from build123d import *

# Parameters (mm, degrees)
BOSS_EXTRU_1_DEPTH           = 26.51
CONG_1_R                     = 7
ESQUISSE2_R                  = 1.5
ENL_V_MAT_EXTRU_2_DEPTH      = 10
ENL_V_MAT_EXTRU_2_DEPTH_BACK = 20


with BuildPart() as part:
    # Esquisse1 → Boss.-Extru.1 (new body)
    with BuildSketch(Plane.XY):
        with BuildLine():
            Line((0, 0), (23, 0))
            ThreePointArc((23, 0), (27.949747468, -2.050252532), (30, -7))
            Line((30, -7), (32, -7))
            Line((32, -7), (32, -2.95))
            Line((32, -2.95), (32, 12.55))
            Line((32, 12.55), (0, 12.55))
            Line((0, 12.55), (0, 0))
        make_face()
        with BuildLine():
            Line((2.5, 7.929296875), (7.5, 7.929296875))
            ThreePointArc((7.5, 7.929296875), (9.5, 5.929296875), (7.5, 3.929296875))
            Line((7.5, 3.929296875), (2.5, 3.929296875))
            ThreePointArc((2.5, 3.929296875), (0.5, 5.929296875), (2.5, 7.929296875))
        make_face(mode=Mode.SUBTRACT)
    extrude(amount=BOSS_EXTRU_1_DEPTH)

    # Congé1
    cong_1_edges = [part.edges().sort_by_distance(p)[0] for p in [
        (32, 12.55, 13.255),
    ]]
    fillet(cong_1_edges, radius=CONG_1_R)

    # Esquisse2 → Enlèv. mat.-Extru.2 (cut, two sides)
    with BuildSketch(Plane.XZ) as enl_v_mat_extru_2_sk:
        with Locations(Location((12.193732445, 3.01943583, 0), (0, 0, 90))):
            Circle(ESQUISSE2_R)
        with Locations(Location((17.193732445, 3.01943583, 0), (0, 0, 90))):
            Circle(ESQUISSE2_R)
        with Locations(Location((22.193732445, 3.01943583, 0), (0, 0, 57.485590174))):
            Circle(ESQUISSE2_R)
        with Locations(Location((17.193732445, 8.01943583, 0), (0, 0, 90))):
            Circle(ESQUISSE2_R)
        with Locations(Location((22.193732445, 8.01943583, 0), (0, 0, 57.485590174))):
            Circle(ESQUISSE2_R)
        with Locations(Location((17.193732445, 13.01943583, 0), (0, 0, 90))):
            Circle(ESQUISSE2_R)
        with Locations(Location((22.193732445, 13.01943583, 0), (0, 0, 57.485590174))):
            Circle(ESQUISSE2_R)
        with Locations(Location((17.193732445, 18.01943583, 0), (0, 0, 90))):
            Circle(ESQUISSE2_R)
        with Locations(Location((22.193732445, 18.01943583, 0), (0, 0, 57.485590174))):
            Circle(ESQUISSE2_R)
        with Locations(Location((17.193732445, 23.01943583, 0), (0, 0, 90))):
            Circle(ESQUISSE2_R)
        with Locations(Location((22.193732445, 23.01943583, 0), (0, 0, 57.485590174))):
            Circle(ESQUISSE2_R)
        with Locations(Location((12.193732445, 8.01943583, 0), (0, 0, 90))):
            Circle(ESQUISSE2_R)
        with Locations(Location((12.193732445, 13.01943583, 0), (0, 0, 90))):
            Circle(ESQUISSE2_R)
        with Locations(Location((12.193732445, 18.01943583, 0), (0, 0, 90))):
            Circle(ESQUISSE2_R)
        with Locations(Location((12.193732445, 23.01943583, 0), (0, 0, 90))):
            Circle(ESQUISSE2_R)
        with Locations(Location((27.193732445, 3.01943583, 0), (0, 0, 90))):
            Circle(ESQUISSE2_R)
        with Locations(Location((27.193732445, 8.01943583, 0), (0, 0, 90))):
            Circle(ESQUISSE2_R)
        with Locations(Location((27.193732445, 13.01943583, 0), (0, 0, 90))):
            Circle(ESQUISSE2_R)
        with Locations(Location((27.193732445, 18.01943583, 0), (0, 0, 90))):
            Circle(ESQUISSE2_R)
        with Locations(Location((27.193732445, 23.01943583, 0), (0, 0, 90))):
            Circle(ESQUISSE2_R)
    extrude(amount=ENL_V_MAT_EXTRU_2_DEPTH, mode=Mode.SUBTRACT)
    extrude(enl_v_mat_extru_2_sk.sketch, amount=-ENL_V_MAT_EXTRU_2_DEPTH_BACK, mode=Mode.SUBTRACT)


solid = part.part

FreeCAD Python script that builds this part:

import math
import FreeCAD as App
import Part
import Sketcher
from FreeCAD import Vector
Q = App.Units.Quantity


def edges_at(feature, points):
    """Names of the edges that pass closest to the given points."""
    edges = feature.Shape.Edges
    near = lambda p: min(range(len(edges)), key=lambda i: edges[i].distToShape(Part.Vertex(*p))[0])
    return sorted({f"Edge{near(p) + 1}" for p in points})

doc = App.newDocument("Part")
params = doc.addObject("Spreadsheet::Sheet", "Params")
for row, (alias, value) in enumerate([
    ("sketch1_radius", "7 mm"),
    ("sketch1_radius2", "2 mm"),
    ("sketch1_width", "23 mm"),
    ("sketch1_width2", "2 mm"),
    ("sketch1_width3", "5 mm"),
    ("pad1_length", "26.51 mm"),
    ("fillet_radius", "7 mm"),
    ("sketch2_diameter", "3 mm"),
], start=1):
    params.set(f"A{row}", alias)
    params.set(f"B{row}", "=" + value)
    params.setAlias(f"B{row}", alias)

body = doc.addObject("PartDesign::Body", "Body")

sketch1 = body.newObject("Sketcher::SketchObject", "Sketch")
sketch1.AttachmentSupport = (doc.getObject("XY_Plane"), [""])
sketch1.MapMode = "FlatFace"
sketch1.addGeometry(Part.LineSegment(Vector(0, 0, 0), Vector(23, 0, 0)), False)
sketch1.addGeometry(Part.ArcOfCircle(Part.Circle(Vector(23, -7, 0), Vector(0, 0, 1), 7), math.radians(0), math.radians(90)), False)
sketch1.addGeometry(Part.LineSegment(Vector(30, -7, 0), Vector(32, -7, 0)), False)
sketch1.addGeometry(Part.LineSegment(Vector(32, -7, 0), Vector(32, 12.55, 0)), False)
sketch1.addGeometry(Part.LineSegment(Vector(32, 12.55, 0), Vector(0, 12.55, 0)), False)
sketch1.addGeometry(Part.LineSegment(Vector(0, 12.55, 0), Vector(0, 0, 0)), False)
sketch1.addGeometry(Part.ArcOfCircle(Part.Circle(Vector(2.5, 5.929297, 0), Vector(0, 0, 1), 2), math.radians(90), math.radians(270)), False)
sketch1.addGeometry(Part.LineSegment(Vector(2.5, 7.929297, 0), Vector(7.5, 7.929297, 0)), False)
sketch1.addGeometry(Part.ArcOfCircle(Part.Circle(Vector(7.5, 5.929297, 0), Vector(0, 0, 1), 2), math.radians(-90), math.radians(90)), False)
sketch1.addGeometry(Part.LineSegment(Vector(7.5, 3.929297, 0), Vector(2.5, 3.929297, 0)), False)
sketch1.addConstraint(Sketcher.Constraint("Tangent", 0, 2, 1, 2))
sketch1.addConstraint(Sketcher.Constraint("Coincident", 1, 1, 2, 1))
sketch1.addConstraint(Sketcher.Constraint("Coincident", 2, 2, 3, 1))
sketch1.addConstraint(Sketcher.Constraint("Coincident", 3, 2, 4, 1))
sketch1.addConstraint(Sketcher.Constraint("Coincident", 4, 2, 5, 1))
sketch1.addConstraint(Sketcher.Constraint("Coincident", 5, 2, 0, 1))
sketch1.addConstraint(Sketcher.Constraint("Tangent", 6, 1, 7, 1))
sketch1.addConstraint(Sketcher.Constraint("Tangent", 7, 2, 8, 2))
sketch1.addConstraint(Sketcher.Constraint("Tangent", 8, 1, 9, 1))
sketch1.addConstraint(Sketcher.Constraint("Tangent", 9, 2, 6, 2))
sketch1.addConstraint(Sketcher.Constraint("Horizontal", 0))
sketch1.addConstraint(Sketcher.Constraint("Horizontal", 2))
sketch1.addConstraint(Sketcher.Constraint("Vertical", 3))
sketch1.addConstraint(Sketcher.Constraint("Horizontal", 4))
sketch1.addConstraint(Sketcher.Constraint("Vertical", 5))
sketch1.addConstraint(Sketcher.Constraint("Horizontal", 7))
sketch1.addConstraint(Sketcher.Constraint("Horizontal", 9))
sketch1.addConstraint(Sketcher.Constraint("Coincident", 5, 2, -1, 1))
sketch1.addConstraint(Sketcher.Constraint("Radius", 1, Q("7 mm")))
sketch1.addConstraint(Sketcher.Constraint("Radius", 6, Q("2 mm")))
sketch1.addConstraint(Sketcher.Constraint("DistanceX", 0, 1, 0, 2, Q("23 mm")))
sketch1.addConstraint(Sketcher.Constraint("DistanceX", 2, 1, 2, 2, Q("2 mm")))
sketch1.addConstraint(Sketcher.Constraint("DistanceX", 7, 1, 7, 2, Q("5 mm")))
sketch1.addConstraint(Sketcher.Constraint("DistanceY", 1, 1, -1, 1, Q("7 mm")))
sketch1.addConstraint(Sketcher.Constraint("DistanceY", 3, 1, 3, 2, Q("19.55 mm")))
sketch1.addConstraint(Sketcher.Constraint("DistanceX", -1, 1, 6, 3, Q("2.5 mm")))
sketch1.addConstraint(Sketcher.Constraint("DistanceY", -1, 1, 6, 3, Q("5.929297 mm")))
sketch1.setExpression("Constraints[18]", "Params.sketch1_radius")
sketch1.setExpression("Constraints[19]", "Params.sketch1_radius2")
sketch1.setExpression("Constraints[20]", "Params.sketch1_width")
sketch1.setExpression("Constraints[21]", "Params.sketch1_width2")
sketch1.setExpression("Constraints[22]", "Params.sketch1_width3")
pad1 = body.newObject("PartDesign::Pad", "Pad")
pad1.Profile = sketch1
pad1.setExpression("Length", "Params.pad1_length")
doc.recompute()

fillet = body.newObject("PartDesign::Fillet", "Fillet")
fillet.Base = (pad1, edges_at(pad1, [(32, 12.55, 13.255)]))
fillet.setExpression("Radius", "Params.fillet_radius")

sketch2 = body.newObject("Sketcher::SketchObject", "Sketch001")
sketch2.AttachmentSupport = (doc.getObject("XZ_Plane"), [""])
sketch2.MapMode = "FlatFace"
sketch2.addGeometry(Part.Circle(Vector(12.193732, 3.019436, 0), Vector(0, 0, 1), 1.5), False)
sketch2.addGeometry(Part.Circle(Vector(17.193732, 3.019436, 0), Vector(0, 0, 1), 1.5), False)
sketch2.addGeometry(Part.Circle(Vector(22.193732, 3.019436, 0), Vector(0, 0, 1), 1.5), False)
sketch2.addGeometry(Part.Circle(Vector(17.193732, 8.019436, 0), Vector(0, 0, 1), 1.5), False)
sketch2.addGeometry(Part.Circle(Vector(22.193732, 8.019436, 0), Vector(0, 0, 1), 1.5), False)
sketch2.addGeometry(Part.Circle(Vector(17.193732, 13.019436, 0), Vector(0, 0, 1), 1.5), False)
sketch2.addGeometry(Part.Circle(Vector(22.193732, 13.019436, 0), Vector(0, 0, 1), 1.5), False)
sketch2.addGeometry(Part.Circle(Vector(17.193732, 18.019436, 0), Vector(0, 0, 1), 1.5), False)
sketch2.addGeometry(Part.Circle(Vector(22.193732, 18.019436, 0), Vector(0, 0, 1), 1.5), False)
sketch2.addGeometry(Part.Circle(Vector(17.193732, 23.019436, 0), Vector(0, 0, 1), 1.5), False)
sketch2.addGeometry(Part.Circle(Vector(22.193732, 23.019436, 0), Vector(0, 0, 1), 1.5), False)
sketch2.addGeometry(Part.Circle(Vector(12.193732, 8.019436, 0), Vector(0, 0, 1), 1.5), False)
sketch2.addGeometry(Part.Circle(Vector(12.193732, 13.019436, 0), Vector(0, 0, 1), 1.5), False)
sketch2.addGeometry(Part.Circle(Vector(12.193732, 18.019436, 0), Vector(0, 0, 1), 1.5), False)
sketch2.addGeometry(Part.Circle(Vector(12.193732, 23.019436, 0), Vector(0, 0, 1), 1.5), False)
sketch2.addGeometry(Part.Circle(Vector(27.193732, 3.019436, 0), Vector(0, 0, 1), 1.5), False)
sketch2.addGeometry(Part.Circle(Vector(27.193732, 8.019436, 0), Vector(0, 0, 1), 1.5), False)
sketch2.addGeometry(Part.Circle(Vector(27.193732, 13.019436, 0), Vector(0, 0, 1), 1.5), False)
sketch2.addGeometry(Part.Circle(Vector(27.193732, 18.019436, 0), Vector(0, 0, 1), 1.5), False)
sketch2.addGeometry(Part.Circle(Vector(27.193732, 23.019436, 0), Vector(0, 0, 1), 1.5), False)
sketch2.addConstraint(Sketcher.Constraint("Equal", 0, 1))
sketch2.addConstraint(Sketcher.Constraint("Equal", 1, 2))
sketch2.addConstraint(Sketcher.Constraint("Equal", 2, 3))
sketch2.addConstraint(Sketcher.Constraint("Equal", 3, 4))
sketch2.addConstraint(Sketcher.Constraint("Equal", 4, 5))
sketch2.addConstraint(Sketcher.Constraint("Equal", 5, 6))
sketch2.addConstraint(Sketcher.Constraint("Equal", 6, 7))
sketch2.addConstraint(Sketcher.Constraint("Equal", 7, 8))
sketch2.addConstraint(Sketcher.Constraint("Equal", 8, 9))
sketch2.addConstraint(Sketcher.Constraint("Equal", 9, 10))
sketch2.addConstraint(Sketcher.Constraint("Equal", 10, 11))
sketch2.addConstraint(Sketcher.Constraint("Equal", 11, 12))
sketch2.addConstraint(Sketcher.Constraint("Equal", 12, 13))
sketch2.addConstraint(Sketcher.Constraint("Equal", 13, 14))
sketch2.addConstraint(Sketcher.Constraint("Equal", 14, 15))
sketch2.addConstraint(Sketcher.Constraint("Equal", 15, 16))
sketch2.addConstraint(Sketcher.Constraint("Equal", 16, 17))
sketch2.addConstraint(Sketcher.Constraint("Equal", 17, 18))
sketch2.addConstraint(Sketcher.Constraint("Equal", 18, 19))
sketch2.addConstraint(Sketcher.Constraint("Horizontal", 0, 3, 1, 3))
sketch2.addConstraint(Sketcher.Constraint("Horizontal", 1, 3, 2, 3))
sketch2.addConstraint(Sketcher.Constraint("Horizontal", 3, 3, 4, 3))
sketch2.addConstraint(Sketcher.Constraint("Horizontal", 5, 3, 6, 3))
sketch2.addConstraint(Sketcher.Constraint("Horizontal", 7, 3, 8, 3))
sketch2.addConstraint(Sketcher.Constraint("Horizontal", 9, 3, 10, 3))
sketch2.addConstraint(Sketcher.Constraint("Horizontal", 4, 3, 11, 3))
sketch2.addConstraint(Sketcher.Constraint("Horizontal", 6, 3, 12, 3))
sketch2.addConstraint(Sketcher.Constraint("Horizontal", 8, 3, 13, 3))
sketch2.addConstraint(Sketcher.Constraint("Horizontal", 10, 3, 14, 3))
sketch2.addConstraint(Sketcher.Constraint("Horizontal", 2, 3, 15, 3))
sketch2.addConstraint(Sketcher.Constraint("Horizontal", 11, 3, 16, 3))
sketch2.addConstraint(Sketcher.Constraint("Horizontal", 12, 3, 17, 3))
sketch2.addConstraint(Sketcher.Constraint("Horizontal", 13, 3, 18, 3))
sketch2.addConstraint(Sketcher.Constraint("Horizontal", 14, 3, 19, 3))
sketch2.addConstraint(Sketcher.Constraint("Vertical", 1, 3, 3, 3))
sketch2.addConstraint(Sketcher.Constraint("Vertical", 2, 3, 4, 3))
sketch2.addConstraint(Sketcher.Constraint("Vertical", 3, 3, 5, 3))
sketch2.addConstraint(Sketcher.Constraint("Vertical", 4, 3, 6, 3))
sketch2.addConstraint(Sketcher.Constraint("Vertical", 5, 3, 7, 3))
sketch2.addConstraint(Sketcher.Constraint("Vertical", 6, 3, 8, 3))
sketch2.addConstraint(Sketcher.Constraint("Vertical", 7, 3, 9, 3))
sketch2.addConstraint(Sketcher.Constraint("Vertical", 8, 3, 10, 3))
sketch2.addConstraint(Sketcher.Constraint("Vertical", 0, 3, 11, 3))
sketch2.addConstraint(Sketcher.Constraint("Vertical", 11, 3, 12, 3))
sketch2.addConstraint(Sketcher.Constraint("Vertical", 12, 3, 13, 3))
sketch2.addConstraint(Sketcher.Constraint("Vertical", 13, 3, 14, 3))
sketch2.addConstraint(Sketcher.Constraint("Vertical", 15, 3, 16, 3))
sketch2.addConstraint(Sketcher.Constraint("Vertical", 16, 3, 17, 3))
sketch2.addConstraint(Sketcher.Constraint("Vertical", 17, 3, 18, 3))
sketch2.addConstraint(Sketcher.Constraint("Vertical", 18, 3, 19, 3))
sketch2.addConstraint(Sketcher.Constraint("Diameter", 0, Q("3 mm")))
sketch2.addConstraint(Sketcher.Constraint("DistanceX", 0, 3, 1, 3, Q("5 mm")))
sketch2.addConstraint(Sketcher.Constraint("DistanceX", 1, 3, 2, 3, Q("5 mm")))
sketch2.addConstraint(Sketcher.Constraint("DistanceY", 1, 3, 3, 3, Q("5 mm")))
sketch2.addConstraint(Sketcher.Constraint("DistanceY", 3, 3, 5, 3, Q("5 mm")))
sketch2.addConstraint(Sketcher.Constraint("DistanceY", 5, 3, 7, 3, Q("5 mm")))
sketch2.addConstraint(Sketcher.Constraint("DistanceY", 7, 3, 9, 3, Q("5 mm")))
sketch2.addConstraint(Sketcher.Constraint("DistanceX", 2, 3, 15, 3, Q("5 mm")))
sketch2.addConstraint(Sketcher.Constraint("DistanceX", -1, 1, 0, 3, Q("12.193732 mm")))
sketch2.addConstraint(Sketcher.Constraint("DistanceY", -1, 1, 0, 3, Q("3.019436 mm")))
sketch2.setExpression("Constraints[50]", "Params.sketch2_diameter")
pocket1 = body.newObject("PartDesign::Pocket", "Pocket")
pocket1.Profile = sketch2
pocket1.Type = "ThroughAll"
pocket1.Midplane = True

doc.recompute()
